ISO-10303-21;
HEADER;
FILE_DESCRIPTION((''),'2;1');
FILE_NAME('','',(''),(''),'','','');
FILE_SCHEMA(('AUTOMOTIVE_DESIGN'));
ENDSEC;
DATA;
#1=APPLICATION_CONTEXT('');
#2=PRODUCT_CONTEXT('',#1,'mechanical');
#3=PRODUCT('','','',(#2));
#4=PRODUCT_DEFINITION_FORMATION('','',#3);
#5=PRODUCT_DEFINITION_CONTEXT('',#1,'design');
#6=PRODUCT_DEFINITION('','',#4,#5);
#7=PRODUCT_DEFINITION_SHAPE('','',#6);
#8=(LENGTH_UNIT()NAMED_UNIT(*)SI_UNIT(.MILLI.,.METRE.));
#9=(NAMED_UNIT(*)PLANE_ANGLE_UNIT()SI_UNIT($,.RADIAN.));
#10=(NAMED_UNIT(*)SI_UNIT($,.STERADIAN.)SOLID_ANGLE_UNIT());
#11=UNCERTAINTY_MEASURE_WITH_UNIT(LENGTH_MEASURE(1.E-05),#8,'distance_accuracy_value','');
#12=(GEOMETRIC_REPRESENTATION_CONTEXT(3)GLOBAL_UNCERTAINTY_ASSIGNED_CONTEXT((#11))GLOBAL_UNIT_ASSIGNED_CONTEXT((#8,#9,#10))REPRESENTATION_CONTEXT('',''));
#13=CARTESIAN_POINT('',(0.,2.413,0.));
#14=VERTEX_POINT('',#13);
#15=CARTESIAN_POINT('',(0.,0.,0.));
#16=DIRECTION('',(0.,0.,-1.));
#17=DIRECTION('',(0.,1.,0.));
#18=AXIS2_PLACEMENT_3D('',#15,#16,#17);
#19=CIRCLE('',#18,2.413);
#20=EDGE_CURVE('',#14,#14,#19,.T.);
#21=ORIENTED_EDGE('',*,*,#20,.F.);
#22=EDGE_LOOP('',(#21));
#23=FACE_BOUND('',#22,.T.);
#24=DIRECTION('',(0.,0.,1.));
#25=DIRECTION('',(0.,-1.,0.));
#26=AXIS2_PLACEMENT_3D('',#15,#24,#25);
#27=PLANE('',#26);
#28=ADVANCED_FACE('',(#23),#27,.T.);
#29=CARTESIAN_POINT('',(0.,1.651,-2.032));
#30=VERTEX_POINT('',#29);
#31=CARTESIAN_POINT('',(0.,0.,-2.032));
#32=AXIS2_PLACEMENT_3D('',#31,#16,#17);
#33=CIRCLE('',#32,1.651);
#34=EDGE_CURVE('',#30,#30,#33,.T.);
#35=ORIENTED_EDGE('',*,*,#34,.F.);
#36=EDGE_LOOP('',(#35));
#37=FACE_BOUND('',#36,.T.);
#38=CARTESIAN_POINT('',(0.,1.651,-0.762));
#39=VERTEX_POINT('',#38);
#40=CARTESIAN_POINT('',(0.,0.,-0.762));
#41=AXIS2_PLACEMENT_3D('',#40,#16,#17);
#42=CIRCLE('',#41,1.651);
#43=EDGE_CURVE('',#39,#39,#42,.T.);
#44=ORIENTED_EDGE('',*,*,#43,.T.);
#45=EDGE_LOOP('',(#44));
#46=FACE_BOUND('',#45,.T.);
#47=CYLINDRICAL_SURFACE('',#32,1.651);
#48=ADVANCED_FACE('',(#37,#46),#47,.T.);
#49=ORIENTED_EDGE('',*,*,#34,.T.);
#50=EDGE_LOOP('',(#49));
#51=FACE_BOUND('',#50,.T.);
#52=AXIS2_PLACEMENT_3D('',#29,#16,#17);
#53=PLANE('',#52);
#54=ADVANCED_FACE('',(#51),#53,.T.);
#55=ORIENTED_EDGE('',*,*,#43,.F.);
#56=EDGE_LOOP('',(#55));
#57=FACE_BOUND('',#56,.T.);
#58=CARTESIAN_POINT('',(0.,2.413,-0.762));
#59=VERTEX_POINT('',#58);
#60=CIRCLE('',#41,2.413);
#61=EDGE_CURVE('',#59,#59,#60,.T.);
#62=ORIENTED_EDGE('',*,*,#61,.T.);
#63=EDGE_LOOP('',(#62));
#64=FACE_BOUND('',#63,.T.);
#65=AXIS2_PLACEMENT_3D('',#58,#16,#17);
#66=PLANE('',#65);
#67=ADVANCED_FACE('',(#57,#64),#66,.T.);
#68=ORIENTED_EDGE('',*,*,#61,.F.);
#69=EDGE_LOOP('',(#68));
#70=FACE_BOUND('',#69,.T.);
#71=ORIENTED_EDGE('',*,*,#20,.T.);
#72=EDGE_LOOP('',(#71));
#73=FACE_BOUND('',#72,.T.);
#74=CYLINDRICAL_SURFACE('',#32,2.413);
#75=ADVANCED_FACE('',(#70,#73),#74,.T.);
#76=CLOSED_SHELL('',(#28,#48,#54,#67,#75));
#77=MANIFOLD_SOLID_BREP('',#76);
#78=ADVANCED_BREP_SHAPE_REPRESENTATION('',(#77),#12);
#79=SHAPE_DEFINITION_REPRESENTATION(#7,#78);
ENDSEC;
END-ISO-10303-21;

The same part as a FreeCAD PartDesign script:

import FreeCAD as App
import Part
import Sketcher
Q = App.Units.Quantity


def add_polygon(sketch, points):
    """Adds a closed chain of lines whose ends are joined by coincident constraints."""
    first, n = sketch.GeometryCount, len(points)
    for a, b in zip(points, points[1:] + points[:1]):
        sketch.addGeometry(Part.LineSegment(App.Vector(*a, 0), App.Vector(*b, 0)), False)
    for i in range(n):
        sketch.addConstraint(Sketcher.Constraint("Coincident", first + i, 2, first + (i + 1) % n, 1))

doc = App.newDocument("Part")
body = doc.addObject("PartDesign::Body", "Body")

# Sketch on YZ plane
sketch1 = body.newObject("Sketcher::SketchObject", "Sketch")
sketch1.AttachmentSupport = (doc.getObject("YZ_Plane"), [""])
sketch1.MapMode = "FlatFace"
add_polygon(sketch1, [(2.4, 0), (0, 0), (0, -2), (1.7, -2), (1.7, -0.8), (2.4, -0.8)])  # lines 0-5
sketch1.addConstraint([
    Sketcher.Constraint("Horizontal", 0),
    Sketcher.Constraint("Vertical", 1),
    Sketcher.Constraint("Horizontal", 2),
    Sketcher.Constraint("Vertical", 3),
    Sketcher.Constraint("Horizontal", 4),
    Sketcher.Constraint("Vertical", 5),
    Sketcher.Constraint("Coincident", 0, 2, -1, 1),
    Sketcher.Constraint("Equal", 4, 5),
    Sketcher.Constraint("DistanceX", 4, 1, 4, 2, Q("0.03 in")),
    Sketcher.Constraint("DistanceY", 1, 2, 1, 1, Q("0.08 in")),
    Sketcher.Constraint("DistanceX", 0, 2, 0, 1, Q("0.095 in")),
])
revolution = body.newObject("PartDesign::Revolution", "Revolution")
revolution.Profile = sketch1
revolution.ReferenceAxis = (sketch1, ["V_Axis"])
revolution.Angle = 360

doc.recompute()
